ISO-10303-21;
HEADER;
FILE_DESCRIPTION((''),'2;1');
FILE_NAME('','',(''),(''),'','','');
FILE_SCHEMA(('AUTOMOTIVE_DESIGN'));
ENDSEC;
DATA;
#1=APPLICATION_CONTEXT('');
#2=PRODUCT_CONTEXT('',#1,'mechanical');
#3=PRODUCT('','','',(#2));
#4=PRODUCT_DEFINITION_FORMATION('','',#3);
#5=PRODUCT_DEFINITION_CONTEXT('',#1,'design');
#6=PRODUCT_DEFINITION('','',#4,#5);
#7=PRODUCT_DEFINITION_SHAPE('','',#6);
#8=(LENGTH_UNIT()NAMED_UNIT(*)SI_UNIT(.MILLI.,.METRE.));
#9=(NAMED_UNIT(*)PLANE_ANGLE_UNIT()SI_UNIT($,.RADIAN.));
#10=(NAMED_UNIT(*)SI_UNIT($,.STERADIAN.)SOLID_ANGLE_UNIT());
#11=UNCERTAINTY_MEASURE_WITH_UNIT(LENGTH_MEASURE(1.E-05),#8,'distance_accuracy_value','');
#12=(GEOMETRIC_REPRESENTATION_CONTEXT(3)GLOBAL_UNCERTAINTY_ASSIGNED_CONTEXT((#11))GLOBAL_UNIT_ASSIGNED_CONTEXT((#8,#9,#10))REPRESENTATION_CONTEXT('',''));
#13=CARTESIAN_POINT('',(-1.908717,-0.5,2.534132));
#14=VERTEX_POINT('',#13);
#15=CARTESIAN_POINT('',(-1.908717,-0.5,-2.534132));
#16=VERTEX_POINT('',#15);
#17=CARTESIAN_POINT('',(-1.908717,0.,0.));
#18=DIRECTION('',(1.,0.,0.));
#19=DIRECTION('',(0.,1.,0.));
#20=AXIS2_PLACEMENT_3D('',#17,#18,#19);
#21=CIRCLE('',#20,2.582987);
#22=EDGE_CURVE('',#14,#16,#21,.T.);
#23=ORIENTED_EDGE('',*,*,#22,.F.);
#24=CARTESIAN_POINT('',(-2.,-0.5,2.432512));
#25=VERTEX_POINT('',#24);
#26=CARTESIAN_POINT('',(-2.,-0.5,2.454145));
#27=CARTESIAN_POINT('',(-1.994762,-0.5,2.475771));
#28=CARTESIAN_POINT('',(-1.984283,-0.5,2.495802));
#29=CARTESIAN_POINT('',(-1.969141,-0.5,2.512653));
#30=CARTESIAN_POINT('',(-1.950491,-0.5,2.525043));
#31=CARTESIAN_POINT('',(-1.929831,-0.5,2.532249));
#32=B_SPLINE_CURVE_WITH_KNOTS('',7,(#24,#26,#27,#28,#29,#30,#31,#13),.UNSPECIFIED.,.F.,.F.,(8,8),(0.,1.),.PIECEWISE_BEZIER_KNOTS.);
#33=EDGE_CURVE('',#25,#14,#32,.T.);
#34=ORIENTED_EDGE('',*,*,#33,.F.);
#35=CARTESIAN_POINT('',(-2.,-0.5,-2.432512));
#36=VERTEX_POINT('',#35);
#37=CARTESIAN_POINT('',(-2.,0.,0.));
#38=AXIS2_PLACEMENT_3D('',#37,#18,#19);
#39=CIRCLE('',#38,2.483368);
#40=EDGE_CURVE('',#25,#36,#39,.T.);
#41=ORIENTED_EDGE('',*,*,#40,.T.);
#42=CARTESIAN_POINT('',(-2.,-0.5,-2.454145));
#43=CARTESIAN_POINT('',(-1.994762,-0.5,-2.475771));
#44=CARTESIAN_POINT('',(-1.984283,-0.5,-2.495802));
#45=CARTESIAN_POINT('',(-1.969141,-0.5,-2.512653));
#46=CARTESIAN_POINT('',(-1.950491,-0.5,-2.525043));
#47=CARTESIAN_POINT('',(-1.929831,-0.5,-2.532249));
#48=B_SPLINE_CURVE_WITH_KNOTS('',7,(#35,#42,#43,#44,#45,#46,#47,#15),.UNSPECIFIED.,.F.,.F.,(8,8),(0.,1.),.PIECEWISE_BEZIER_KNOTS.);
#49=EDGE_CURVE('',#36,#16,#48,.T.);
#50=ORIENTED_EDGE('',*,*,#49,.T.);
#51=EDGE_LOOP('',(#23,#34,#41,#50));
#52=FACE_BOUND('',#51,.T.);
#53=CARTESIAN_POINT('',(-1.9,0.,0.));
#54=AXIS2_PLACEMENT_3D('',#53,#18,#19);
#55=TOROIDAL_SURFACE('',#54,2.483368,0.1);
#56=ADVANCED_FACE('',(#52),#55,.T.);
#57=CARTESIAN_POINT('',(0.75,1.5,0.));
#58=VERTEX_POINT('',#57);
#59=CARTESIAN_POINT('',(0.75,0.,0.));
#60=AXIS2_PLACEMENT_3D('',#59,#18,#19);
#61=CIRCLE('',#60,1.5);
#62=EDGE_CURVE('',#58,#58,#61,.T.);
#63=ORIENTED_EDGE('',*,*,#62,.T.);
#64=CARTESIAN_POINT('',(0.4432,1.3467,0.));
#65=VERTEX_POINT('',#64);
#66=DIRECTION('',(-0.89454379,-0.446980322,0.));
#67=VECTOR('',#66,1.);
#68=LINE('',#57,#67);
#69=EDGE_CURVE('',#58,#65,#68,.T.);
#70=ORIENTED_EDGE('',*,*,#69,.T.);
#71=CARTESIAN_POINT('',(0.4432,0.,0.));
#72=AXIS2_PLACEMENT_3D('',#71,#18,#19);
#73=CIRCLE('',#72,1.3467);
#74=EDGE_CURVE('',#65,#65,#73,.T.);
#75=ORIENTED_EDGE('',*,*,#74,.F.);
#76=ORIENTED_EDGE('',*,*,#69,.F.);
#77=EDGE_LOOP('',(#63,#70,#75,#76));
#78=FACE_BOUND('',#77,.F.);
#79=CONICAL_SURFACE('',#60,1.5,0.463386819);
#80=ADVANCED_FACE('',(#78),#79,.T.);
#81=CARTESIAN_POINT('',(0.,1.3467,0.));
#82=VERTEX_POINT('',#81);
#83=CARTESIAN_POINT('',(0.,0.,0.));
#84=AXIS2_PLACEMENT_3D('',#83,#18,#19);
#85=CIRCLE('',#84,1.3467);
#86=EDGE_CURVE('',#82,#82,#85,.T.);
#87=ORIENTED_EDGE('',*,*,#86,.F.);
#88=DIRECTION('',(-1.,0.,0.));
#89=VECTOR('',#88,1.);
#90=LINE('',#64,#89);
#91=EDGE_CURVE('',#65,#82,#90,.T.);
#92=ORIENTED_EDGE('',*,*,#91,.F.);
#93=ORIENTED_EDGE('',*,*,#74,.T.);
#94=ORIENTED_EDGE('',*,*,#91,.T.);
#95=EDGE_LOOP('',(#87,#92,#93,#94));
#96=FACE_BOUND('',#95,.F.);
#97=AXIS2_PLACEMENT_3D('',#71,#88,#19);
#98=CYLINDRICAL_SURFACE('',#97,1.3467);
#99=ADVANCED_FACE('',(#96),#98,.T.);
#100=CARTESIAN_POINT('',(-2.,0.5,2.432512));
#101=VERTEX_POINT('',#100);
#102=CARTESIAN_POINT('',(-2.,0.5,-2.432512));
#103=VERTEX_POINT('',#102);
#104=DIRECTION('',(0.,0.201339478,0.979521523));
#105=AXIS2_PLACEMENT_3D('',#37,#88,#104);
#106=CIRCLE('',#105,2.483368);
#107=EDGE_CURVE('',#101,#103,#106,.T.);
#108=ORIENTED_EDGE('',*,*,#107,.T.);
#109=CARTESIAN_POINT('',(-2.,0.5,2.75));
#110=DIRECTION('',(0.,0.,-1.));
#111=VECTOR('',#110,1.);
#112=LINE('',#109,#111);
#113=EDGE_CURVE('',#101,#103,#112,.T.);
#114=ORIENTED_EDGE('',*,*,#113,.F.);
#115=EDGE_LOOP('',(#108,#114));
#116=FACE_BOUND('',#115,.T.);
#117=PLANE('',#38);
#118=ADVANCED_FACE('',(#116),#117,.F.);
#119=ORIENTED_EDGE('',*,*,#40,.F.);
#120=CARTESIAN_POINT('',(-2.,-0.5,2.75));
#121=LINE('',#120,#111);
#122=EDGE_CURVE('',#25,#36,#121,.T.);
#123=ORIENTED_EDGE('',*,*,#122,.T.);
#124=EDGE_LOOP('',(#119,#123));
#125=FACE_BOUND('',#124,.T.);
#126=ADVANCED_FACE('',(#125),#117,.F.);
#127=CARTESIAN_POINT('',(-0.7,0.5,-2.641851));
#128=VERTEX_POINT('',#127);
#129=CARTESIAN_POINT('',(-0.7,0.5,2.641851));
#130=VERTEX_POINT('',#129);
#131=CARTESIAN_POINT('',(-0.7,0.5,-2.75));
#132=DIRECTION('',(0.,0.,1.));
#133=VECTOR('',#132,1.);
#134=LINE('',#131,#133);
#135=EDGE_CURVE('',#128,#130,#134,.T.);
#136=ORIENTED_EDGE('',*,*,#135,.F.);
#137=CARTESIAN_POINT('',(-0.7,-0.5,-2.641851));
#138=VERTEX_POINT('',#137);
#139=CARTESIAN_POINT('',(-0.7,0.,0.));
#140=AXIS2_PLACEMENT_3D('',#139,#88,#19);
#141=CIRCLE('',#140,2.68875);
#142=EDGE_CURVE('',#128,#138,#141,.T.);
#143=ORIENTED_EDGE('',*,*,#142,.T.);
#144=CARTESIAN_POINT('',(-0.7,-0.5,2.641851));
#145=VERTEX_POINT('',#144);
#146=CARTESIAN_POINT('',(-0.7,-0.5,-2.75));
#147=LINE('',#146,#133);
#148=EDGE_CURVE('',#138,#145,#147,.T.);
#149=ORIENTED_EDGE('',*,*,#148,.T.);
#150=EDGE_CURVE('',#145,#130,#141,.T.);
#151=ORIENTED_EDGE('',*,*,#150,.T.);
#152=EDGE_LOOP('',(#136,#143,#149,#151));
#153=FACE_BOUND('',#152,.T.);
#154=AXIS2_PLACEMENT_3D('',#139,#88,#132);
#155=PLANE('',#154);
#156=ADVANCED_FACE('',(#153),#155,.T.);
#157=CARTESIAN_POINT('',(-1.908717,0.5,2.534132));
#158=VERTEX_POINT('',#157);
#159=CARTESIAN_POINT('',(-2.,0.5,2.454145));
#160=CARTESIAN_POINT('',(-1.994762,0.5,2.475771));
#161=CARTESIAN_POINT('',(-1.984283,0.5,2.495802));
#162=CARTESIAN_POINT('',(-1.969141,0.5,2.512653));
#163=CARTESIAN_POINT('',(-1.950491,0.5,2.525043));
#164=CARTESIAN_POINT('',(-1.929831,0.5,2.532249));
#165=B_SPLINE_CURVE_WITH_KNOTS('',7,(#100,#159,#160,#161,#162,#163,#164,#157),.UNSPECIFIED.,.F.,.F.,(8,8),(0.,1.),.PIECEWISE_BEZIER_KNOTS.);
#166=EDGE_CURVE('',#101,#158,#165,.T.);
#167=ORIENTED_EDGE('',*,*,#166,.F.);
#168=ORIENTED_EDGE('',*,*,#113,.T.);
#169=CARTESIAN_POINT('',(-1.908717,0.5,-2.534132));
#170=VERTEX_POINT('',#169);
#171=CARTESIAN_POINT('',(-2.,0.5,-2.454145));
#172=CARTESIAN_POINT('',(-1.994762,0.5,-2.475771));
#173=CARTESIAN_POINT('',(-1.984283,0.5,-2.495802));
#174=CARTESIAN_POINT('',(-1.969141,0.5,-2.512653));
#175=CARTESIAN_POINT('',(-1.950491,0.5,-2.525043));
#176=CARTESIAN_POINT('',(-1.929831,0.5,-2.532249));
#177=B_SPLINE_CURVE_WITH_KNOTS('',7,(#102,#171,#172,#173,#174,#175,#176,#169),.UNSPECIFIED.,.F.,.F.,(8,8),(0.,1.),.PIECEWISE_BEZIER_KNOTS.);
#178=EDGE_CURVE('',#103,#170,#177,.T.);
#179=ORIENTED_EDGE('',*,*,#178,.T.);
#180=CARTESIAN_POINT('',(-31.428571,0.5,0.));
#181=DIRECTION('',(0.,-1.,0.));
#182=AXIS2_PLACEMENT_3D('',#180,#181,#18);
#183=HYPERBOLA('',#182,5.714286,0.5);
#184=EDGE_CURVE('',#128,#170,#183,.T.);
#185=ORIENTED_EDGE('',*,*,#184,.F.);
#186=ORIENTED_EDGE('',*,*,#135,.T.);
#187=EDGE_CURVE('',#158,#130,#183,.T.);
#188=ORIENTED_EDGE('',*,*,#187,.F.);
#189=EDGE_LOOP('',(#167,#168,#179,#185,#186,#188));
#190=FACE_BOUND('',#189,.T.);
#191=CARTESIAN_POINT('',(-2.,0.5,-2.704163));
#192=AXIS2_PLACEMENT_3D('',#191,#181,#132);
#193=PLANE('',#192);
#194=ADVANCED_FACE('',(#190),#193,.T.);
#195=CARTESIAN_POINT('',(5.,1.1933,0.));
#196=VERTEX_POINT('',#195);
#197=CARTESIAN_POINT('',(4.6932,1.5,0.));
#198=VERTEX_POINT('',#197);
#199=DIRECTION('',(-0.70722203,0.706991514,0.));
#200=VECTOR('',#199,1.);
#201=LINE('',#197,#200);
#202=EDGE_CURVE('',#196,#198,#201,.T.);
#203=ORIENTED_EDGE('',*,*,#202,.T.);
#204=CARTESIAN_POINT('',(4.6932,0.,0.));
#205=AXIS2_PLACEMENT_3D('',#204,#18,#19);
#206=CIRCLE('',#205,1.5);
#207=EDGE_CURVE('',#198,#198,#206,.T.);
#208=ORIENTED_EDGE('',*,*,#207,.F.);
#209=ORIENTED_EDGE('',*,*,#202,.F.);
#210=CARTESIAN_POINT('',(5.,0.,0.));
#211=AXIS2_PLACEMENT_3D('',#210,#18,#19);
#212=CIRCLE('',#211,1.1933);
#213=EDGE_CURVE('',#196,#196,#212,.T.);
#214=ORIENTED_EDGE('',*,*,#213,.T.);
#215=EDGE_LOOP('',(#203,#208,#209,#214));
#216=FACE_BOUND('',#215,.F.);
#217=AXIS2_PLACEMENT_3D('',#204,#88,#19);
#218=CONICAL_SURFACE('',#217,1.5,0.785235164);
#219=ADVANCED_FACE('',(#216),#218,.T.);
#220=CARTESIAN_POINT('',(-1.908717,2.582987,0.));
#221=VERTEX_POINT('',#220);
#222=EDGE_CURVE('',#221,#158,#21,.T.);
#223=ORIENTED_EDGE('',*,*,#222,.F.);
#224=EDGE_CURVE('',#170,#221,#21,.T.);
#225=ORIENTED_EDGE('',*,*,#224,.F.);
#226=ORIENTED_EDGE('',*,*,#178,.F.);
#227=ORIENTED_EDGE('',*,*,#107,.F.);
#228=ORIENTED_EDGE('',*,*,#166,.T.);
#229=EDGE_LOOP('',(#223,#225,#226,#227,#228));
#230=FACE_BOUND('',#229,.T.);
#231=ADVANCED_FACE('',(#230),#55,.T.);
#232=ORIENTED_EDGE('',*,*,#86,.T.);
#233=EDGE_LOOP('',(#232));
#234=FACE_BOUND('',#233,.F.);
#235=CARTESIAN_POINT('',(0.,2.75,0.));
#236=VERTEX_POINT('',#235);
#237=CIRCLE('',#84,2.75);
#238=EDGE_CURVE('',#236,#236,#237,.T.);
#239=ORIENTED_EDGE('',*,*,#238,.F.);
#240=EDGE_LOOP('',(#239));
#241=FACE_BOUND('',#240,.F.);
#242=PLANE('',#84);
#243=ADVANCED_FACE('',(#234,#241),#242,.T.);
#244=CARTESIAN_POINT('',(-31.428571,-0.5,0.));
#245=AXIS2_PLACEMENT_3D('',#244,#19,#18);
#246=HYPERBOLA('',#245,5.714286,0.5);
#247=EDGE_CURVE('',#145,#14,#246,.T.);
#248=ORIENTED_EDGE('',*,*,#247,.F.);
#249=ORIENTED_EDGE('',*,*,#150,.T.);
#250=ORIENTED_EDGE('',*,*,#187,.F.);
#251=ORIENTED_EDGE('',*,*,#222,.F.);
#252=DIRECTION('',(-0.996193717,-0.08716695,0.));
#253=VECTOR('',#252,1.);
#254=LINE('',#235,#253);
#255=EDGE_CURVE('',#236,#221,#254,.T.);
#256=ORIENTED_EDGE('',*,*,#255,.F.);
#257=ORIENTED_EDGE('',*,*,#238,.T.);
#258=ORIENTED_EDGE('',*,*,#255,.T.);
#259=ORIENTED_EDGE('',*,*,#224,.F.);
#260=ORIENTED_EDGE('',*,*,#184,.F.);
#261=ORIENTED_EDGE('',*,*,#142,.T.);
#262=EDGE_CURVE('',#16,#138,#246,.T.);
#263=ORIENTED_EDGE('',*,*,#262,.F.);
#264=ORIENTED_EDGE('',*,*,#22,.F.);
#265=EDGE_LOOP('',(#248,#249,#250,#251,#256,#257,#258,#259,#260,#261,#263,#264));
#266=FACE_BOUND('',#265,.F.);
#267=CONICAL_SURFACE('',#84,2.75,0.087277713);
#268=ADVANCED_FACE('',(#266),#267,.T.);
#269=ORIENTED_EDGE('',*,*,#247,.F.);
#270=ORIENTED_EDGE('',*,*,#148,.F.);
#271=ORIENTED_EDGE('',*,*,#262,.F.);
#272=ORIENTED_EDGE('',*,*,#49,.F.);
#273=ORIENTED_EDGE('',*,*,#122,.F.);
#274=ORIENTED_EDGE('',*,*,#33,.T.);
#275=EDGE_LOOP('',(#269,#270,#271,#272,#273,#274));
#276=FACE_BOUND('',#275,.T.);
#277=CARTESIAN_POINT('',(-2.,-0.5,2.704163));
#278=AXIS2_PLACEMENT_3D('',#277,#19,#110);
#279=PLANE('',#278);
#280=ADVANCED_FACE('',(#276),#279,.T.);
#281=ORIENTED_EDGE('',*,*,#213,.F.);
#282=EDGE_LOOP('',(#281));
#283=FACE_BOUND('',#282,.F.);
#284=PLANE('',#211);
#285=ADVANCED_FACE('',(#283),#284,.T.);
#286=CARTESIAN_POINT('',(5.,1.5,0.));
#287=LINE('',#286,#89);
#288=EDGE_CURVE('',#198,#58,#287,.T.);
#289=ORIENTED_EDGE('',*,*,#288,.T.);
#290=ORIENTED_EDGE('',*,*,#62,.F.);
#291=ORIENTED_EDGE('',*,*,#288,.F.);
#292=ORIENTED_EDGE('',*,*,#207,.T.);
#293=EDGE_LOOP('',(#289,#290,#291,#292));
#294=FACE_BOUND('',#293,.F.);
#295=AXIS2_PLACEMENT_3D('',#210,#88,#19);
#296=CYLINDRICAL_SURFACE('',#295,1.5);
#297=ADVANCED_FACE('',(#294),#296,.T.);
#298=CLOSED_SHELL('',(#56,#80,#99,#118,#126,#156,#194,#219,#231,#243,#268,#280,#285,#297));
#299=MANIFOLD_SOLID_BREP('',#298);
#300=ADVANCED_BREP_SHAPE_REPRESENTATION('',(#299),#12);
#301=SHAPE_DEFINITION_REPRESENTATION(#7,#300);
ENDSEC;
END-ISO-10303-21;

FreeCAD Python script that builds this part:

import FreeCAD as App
import Part
import Sketcher
from FreeCAD import Vector
Q = App.Units.Quantity


def edges_at(feature, points):
    """Names of the edges that pass closest to the given points."""
    edges = feature.Shape.Edges
    near = lambda p: min(range(len(edges)), key=lambda i: edges[i].distToShape(Part.Vertex(*p))[0])
    return sorted({f"Edge{near(p) + 1}" for p in points})

doc = App.newDocument("Part")
params = doc.addObject("Spreadsheet::Sheet", "Params")
for row, (alias, value) in enumerate([
    ("sketch1_width", "4.25 mm"),
    ("sketch1_height", "1.5 mm"),
    ("revolution_angle", "360 deg"),
    ("fillet_radius", "0.1 mm"),
    ("sketch2_width", "1 mm"),
    ("sketch2_height", "5.5 mm"),
    ("pocket1_length", "1.3 mm"),
    ("chamfer_size", "0.3067 mm"),
    ("chamfer_size2", "0.3068 mm"),
], start=1):
    params.set(f"A{row}", alias)
    params.set(f"B{row}", "=" + value)
    params.setAlias(f"B{row}", alias)

body = doc.addObject("PartDesign::Body", "Body")

# Sketch on XY plane
sketch1 = body.newObject("Sketcher::SketchObject", "Sketch")
sketch1.AttachmentSupport = (doc.getObject("XY_Plane"), [""])
sketch1.MapMode = "FlatFace"
sketch1.addGeometry(Part.LineSegment(Vector(-2, 2.58, 0), Vector(-2, 0, 0)), False)
sketch1.addGeometry(Part.LineSegment(Vector(-2, 0, 0), Vector(5, 0, 0)), False)
sketch1.addGeometry(Part.LineSegment(Vector(5, 0, 0), Vector(5, 1.5, 0)), False)
sketch1.addGeometry(Part.LineSegment(Vector(5, 1.5, 0), Vector(0.75, 1.5, 0)), False)
sketch1.addGeometry(Part.LineSegment(Vector(0.75, 1.5, 0), Vector(0.44, 1.35, 0)), False)
sketch1.addGeometry(Part.LineSegment(Vector(0.44, 1.35, 0), Vector(0, 1.35, 0)), False)
sketch1.addGeometry(Part.LineSegment(Vector(0, 1.35, 0), Vector(0, 2.75, 0)), False)
sketch1.addGeometry(Part.LineSegment(Vector(0, 2.75, 0), Vector(-2, 2.58, 0)), False)
sketch1.addConstraint(Sketcher.Constraint("Coincident", 0, 2, 1, 1))
sketch1.addConstraint(Sketcher.Constraint("Coincident", 1, 2, 2, 1))
sketch1.addConstraint(Sketcher.Constraint("Coincident", 2, 2, 3, 1))
sketch1.addConstraint(Sketcher.Constraint("Coincident", 3, 2, 4, 1))
sketch1.addConstraint(Sketcher.Constraint("Coincident", 4, 2, 5, 1))
sketch1.addConstraint(Sketcher.Constraint("Coincident", 5, 2, 6, 1))
sketch1.addConstraint(Sketcher.Constraint("Coincident", 6, 2, 7, 1))
sketch1.addConstraint(Sketcher.Constraint("Coincident", 7, 2, 0, 1))
sketch1.addConstraint(Sketcher.Constraint("Vertical", 0))
sketch1.addConstraint(Sketcher.Constraint("Horizontal", 1))
sketch1.addConstraint(Sketcher.Constraint("Vertical", 2))
sketch1.addConstraint(Sketcher.Constraint("Horizontal", 3))
sketch1.addConstraint(Sketcher.Constraint("Horizontal", 5))
sketch1.addConstraint(Sketcher.Constraint("Vertical", 6))
sketch1.addConstraint(Sketcher.Constraint("PointOnObject", 0, 2, -1))
sketch1.addConstraint(Sketcher.Constraint("PointOnObject", 5, 2, -2))
sketch1.addConstraint(Sketcher.Constraint("DistanceX", 0, 2, -1, 1, 2.0))
sketch1.addConstraint(Sketcher.Constraint("DistanceX", -1, 1, 1, 2, 5.0))
sketch1.addConstraint(Sketcher.Constraint("DistanceX", 3, 2, 3, 1, 4.25))
sketch1.addConstraint(Sketcher.Constraint("Angle", 7, Q("-174.9994 deg")))
sketch1.addConstraint(Sketcher.Constraint("DistanceY", 2, 1, 2, 2, 1.5))
sketch1.addConstraint(Sketcher.Constraint("Angle", 4, Q("-153.45 deg")))
sketch1.addConstraint(Sketcher.Constraint("DistanceX", 4, 2, 3, 2, 0.3068))
sketch1.addConstraint(Sketcher.Constraint("DistanceY", 0, 2, 0, 1, 2.575))
sketch1.setExpression("Constraints[18]", "Params.sketch1_width")
sketch1.setExpression("Constraints[20]", "Params.sketch1_height")
revolution = body.newObject("PartDesign::Revolution", "Revolution")
revolution.Profile = sketch1
revolution.ReferenceAxis = (sketch1, ["H_Axis"])
revolution.setExpression("Angle", "Params.revolution_angle")
doc.recompute()

fillet = body.newObject("PartDesign::Fillet", "Fillet")
fillet.Base = (revolution, edges_at(revolution, [(-2, -2.575, 0)]))
fillet.setExpression("Radius", "Params.fillet_radius")

# Sketch on YZ plane
sketch2 = body.newObject("Sketcher::SketchObject", "Sketch001")
sketch2.AttachmentSupport = (doc.getObject("YZ_Plane"), [""])
sketch2.MapMode = "FlatFace"
sketch2.AttachmentOffset = App.Placement(Vector(0, 0, -2), App.Rotation())
sketch2.addGeometry(Part.LineSegment(Vector(-0.5, 2.8, 0), Vector(0.5, 2.8, 0)), False)
sketch2.addGeometry(Part.LineSegment(Vector(0.5, 2.8, 0), Vector(0.5, -2.8, 0)), False)
sketch2.addGeometry(Part.LineSegment(Vector(0.5, -2.8, 0), Vector(-0.5, -2.8, 0)), False)
sketch2.addGeometry(Part.LineSegment(Vector(-0.5, -2.8, 0), Vector(-0.5, 2.8, 0)), False)
sketch2.addConstraint(Sketcher.Constraint("Coincident", 0, 2, 1, 1))
sketch2.addConstraint(Sketcher.Constraint("Coincident", 1, 2, 2, 1))
sketch2.addConstraint(Sketcher.Constraint("Coincident", 2, 2, 3, 1))
sketch2.addConstraint(Sketcher.Constraint("Coincident", 3, 2, 0, 1))
sketch2.addConstraint(Sketcher.Constraint("Horizontal", 0))
sketch2.addConstraint(Sketcher.Constraint("Vertical", 1))
sketch2.addConstraint(Sketcher.Constraint("Horizontal", 2))
sketch2.addConstraint(Sketcher.Constraint("Vertical", 3))
sketch2.addConstraint(Sketcher.Constraint("Symmetric", 0, 2, 2, 2, -1, 1))
sketch2.addConstraint(Sketcher.Constraint("DistanceX", 0, 1, 0, 2, 1.0))
sketch2.addConstraint(Sketcher.Constraint("DistanceY", 1, 2, 1, 1, 5.5))
sketch2.setExpression("Constraints[9]", "Params.sketch2_width")
sketch2.setExpression("Constraints[10]", "Params.sketch2_height")
pocket1 = body.newObject("PartDesign::Pocket", "Pocket")
pocket1.Profile = sketch2
pocket1.setExpression("Length", "Params.pocket1_length")
pocket1.Reversed = True
doc.recompute()

chamfer = body.newObject("PartDesign::Chamfer", "Chamfer")
chamfer.Base = (pocket1, edges_at(pocket1, [(5, -1.5, 0)]))
chamfer.ChamferType = "Two distances"
chamfer.setExpression("Size", "Params.chamfer_size")
chamfer.setExpression("Size2", "Params.chamfer_size2")

doc.recompute()
